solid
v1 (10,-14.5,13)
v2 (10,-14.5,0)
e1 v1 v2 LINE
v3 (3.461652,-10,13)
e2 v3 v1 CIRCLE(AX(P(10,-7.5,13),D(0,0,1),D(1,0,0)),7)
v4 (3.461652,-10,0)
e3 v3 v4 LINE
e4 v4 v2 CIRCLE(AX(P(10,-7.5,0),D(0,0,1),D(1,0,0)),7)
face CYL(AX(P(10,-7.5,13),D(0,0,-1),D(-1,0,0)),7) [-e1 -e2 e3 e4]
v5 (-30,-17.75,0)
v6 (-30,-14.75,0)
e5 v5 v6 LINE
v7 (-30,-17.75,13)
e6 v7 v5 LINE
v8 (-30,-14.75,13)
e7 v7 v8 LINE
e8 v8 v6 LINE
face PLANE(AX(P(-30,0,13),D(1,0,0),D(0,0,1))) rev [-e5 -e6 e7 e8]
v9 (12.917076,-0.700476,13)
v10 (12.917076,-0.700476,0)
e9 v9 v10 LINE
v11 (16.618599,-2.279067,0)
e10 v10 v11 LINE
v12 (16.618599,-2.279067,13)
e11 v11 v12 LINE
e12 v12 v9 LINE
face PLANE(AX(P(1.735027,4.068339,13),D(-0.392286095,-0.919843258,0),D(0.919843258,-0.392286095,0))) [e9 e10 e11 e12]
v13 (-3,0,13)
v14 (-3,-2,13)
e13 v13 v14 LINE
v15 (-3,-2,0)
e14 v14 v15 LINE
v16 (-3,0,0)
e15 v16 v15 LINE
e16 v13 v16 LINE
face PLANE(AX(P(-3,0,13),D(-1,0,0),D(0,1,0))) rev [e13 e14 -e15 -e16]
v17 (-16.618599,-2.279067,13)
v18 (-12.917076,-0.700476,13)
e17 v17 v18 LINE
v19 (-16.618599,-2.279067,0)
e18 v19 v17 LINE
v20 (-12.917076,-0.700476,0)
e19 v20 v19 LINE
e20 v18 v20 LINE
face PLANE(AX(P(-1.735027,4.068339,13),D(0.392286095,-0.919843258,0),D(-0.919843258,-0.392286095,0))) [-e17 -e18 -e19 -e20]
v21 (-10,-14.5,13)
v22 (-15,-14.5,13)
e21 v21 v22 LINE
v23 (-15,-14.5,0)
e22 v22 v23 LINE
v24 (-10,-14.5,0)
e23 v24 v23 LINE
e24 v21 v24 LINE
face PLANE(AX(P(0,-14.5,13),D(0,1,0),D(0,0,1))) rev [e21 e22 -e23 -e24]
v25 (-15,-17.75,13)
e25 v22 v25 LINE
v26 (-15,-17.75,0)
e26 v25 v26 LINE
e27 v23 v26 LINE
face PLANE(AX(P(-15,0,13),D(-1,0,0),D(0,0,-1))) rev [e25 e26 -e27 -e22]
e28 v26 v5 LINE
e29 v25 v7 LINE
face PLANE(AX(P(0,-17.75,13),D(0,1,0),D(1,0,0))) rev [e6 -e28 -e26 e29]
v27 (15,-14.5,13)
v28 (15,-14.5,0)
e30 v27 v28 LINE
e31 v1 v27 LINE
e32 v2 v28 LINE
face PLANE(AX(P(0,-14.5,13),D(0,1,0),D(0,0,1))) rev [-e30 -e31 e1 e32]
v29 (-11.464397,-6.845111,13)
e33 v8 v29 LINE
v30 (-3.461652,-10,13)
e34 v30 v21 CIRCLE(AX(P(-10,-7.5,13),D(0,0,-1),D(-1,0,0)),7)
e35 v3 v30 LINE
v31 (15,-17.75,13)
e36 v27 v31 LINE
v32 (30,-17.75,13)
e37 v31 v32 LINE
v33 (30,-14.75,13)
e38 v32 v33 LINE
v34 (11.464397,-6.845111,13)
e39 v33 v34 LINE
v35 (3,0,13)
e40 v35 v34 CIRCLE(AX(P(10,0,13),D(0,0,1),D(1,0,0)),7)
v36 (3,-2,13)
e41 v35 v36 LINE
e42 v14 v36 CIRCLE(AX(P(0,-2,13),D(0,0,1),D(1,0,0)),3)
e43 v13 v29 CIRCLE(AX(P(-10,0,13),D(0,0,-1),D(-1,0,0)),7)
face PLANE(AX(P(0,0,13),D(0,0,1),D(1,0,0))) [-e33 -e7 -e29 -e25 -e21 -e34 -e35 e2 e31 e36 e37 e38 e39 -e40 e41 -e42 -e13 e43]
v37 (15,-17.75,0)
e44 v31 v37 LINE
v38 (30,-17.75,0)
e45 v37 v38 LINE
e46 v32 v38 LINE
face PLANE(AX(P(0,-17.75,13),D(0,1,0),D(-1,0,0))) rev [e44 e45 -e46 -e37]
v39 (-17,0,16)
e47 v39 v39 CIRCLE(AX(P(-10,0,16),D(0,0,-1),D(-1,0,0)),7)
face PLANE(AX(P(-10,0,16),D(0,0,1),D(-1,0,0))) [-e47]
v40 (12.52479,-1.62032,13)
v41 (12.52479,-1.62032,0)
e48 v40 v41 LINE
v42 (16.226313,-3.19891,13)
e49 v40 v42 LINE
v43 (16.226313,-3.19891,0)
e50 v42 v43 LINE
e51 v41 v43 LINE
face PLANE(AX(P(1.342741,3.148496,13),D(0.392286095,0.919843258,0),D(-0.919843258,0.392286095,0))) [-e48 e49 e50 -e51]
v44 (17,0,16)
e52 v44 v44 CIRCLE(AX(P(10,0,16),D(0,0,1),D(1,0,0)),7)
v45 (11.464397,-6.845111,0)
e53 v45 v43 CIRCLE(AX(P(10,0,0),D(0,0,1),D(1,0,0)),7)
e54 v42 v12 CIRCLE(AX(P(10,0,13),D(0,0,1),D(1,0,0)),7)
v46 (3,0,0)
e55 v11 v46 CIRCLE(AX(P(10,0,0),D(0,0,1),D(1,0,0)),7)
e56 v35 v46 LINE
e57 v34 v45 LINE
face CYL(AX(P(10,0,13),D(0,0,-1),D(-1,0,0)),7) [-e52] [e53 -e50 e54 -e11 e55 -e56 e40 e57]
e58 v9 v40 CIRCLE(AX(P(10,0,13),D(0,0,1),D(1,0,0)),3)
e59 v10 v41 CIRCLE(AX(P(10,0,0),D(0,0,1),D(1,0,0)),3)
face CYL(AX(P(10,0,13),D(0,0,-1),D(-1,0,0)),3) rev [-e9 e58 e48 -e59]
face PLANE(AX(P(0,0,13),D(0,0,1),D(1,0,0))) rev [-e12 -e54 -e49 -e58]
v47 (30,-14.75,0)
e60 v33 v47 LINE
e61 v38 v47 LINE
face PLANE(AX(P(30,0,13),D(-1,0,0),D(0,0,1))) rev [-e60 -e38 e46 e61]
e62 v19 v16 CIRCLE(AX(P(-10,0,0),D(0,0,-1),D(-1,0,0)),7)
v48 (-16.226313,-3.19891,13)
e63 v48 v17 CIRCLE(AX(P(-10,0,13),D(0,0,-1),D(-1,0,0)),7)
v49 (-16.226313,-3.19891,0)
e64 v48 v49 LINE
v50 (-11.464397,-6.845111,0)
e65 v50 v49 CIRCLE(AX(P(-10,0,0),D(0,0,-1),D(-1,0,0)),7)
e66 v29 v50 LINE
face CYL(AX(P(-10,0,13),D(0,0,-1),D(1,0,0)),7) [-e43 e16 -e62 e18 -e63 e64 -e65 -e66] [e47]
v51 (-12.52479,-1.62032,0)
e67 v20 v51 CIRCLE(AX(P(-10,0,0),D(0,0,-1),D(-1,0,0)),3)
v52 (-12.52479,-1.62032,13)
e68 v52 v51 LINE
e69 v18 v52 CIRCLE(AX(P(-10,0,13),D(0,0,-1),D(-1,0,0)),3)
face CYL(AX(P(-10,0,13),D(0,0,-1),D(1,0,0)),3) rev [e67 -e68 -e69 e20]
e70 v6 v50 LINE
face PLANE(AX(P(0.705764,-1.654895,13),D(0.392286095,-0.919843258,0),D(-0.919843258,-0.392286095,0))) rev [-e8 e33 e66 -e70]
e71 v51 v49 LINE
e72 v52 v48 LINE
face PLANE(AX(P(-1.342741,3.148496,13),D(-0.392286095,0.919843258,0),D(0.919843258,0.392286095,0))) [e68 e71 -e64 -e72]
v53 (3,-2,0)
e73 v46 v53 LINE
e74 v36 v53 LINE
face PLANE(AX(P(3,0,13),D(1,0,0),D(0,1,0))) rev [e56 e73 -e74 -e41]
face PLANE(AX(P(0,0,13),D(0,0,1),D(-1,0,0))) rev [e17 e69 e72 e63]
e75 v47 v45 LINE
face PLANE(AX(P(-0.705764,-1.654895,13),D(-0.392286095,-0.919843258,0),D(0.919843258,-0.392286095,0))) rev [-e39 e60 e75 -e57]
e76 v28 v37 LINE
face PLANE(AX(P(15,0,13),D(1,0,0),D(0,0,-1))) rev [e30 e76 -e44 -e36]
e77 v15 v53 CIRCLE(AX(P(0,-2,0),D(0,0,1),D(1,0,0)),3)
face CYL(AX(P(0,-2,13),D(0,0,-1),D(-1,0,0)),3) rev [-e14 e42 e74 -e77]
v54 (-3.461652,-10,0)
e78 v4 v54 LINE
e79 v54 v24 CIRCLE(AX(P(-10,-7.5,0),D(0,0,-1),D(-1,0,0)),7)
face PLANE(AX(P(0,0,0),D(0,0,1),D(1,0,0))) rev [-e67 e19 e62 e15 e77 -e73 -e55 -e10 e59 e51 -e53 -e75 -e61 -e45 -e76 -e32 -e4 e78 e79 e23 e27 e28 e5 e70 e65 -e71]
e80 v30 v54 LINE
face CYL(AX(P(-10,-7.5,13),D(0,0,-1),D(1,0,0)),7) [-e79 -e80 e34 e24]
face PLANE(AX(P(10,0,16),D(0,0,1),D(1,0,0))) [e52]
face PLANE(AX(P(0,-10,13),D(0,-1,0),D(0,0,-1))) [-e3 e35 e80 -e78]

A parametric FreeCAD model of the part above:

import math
import FreeCAD as App
import Part
import Sketcher
from FreeCAD import Vector

doc = App.newDocument("Part")
body = doc.addObject("PartDesign::Body", "Body")

# Sketch on XY plane
sketch1 = body.newObject("Sketcher::SketchObject", "Sketch")
sketch1.AttachmentSupport = (doc.getObject("XY_Plane"), [""])
sketch1.MapMode = "FlatFace"
sketch1.addGeometry([
    Part.LineSegment(Vector(3, 0, 0), Vector(3, -2, 0)),  # 0
    Part.ArcOfCircle(Part.Circle(Vector(0, -2, 0), Vector(0, 0, 1), 3), math.radians(-90), math.radians(0)),  # 1
    Part.LineSegment(Vector(0, -5, 0), Vector(0, -10, 0)),  # 2
    Part.LineSegment(Vector(0, -10, 0), Vector(3.461652, -10, 0)),  # 3
    Part.ArcOfCircle(Part.Circle(Vector(10, -7.5, 0), Vector(0, 0, 1), 7), math.radians(-159.075168), math.radians(-90)),  # 4
    Part.LineSegment(Vector(10, -14.5, 0), Vector(15, -14.5, 0)),  # 5
    Part.LineSegment(Vector(15, -14.5, 0), Vector(15, -17.75, 0)),  # 6
    Part.LineSegment(Vector(15, -17.75, 0), Vector(30, -17.75, 0)),  # 7
    Part.LineSegment(Vector(30, -17.75, 0), Vector(30, -14.75, 0)),  # 8
    Part.LineSegment(Vector(30, -14.75, 0), Vector(16.808917, -9.124391, 0)),  # 9
    Part.LineSegment(Vector(16.808917, -9.124391, 0), Vector(11.464397, -6.845111, 0)),  # 10
    Part.ArcOfCircle(Part.Circle(Vector(10, 0, 0), Vector(0, 0, 1), 7), math.radians(-77.924547), math.radians(180)),  # 11
], False)
sketch1.addConstraint([
    Sketcher.Constraint("Tangent", 0, 2, 1, 2),
    Sketcher.Constraint("Coincident", 1, 1, 2, 1),
    Sketcher.Constraint("Coincident", 2, 2, 3, 1),
    Sketcher.Constraint("Coincident", 3, 2, 4, 1),
    Sketcher.Constraint("Tangent", 4, 2, 5, 1),
    Sketcher.Constraint("Coincident", 5, 2, 6, 1),
    Sketcher.Constraint("Coincident", 6, 2, 7, 1),
    Sketcher.Constraint("Coincident", 7, 2, 8, 1),
    Sketcher.Constraint("Coincident", 8, 2, 9, 1),
    Sketcher.Constraint("Coincident", 9, 2, 10, 1),
    Sketcher.Constraint("Coincident", 10, 2, 11, 1),
    Sketcher.Constraint("Tangent", 11, 2, 0, 1),
    Sketcher.Constraint("Vertical", 0),
    Sketcher.Constraint("Vertical", 2),
    Sketcher.Constraint("Horizontal", 3),
    Sketcher.Constraint("Horizontal", 5),
    Sketcher.Constraint("Vertical", 6),
    Sketcher.Constraint("Horizontal", 7),
    Sketcher.Constraint("Vertical", 8),
    Sketcher.Constraint("Equal", 4, 11),
    Sketcher.Constraint("PointOnObject", 1, 3, -2),
    Sketcher.Constraint("PointOnObject", 11, 3, -1),
    Sketcher.Constraint("PointOnObject", 1, 1, -2),
    Sketcher.Constraint("Parallel", 9, 10),
    Sketcher.Constraint("Vertical", 4, 3, 11, 3),
    Sketcher.Constraint("Equal", 5, 2),
    Sketcher.Constraint("Radius", 1, 3.0),
    Sketcher.Constraint("Radius", 4, 7.0),
    Sketcher.Constraint("DistanceX", 5, 1, 5, 2, 5.0),
    Sketcher.Constraint("DistanceX", 7, 1, 7, 2, 15.0),
    Sketcher.Constraint("DistanceY", 0, 2, 0, 1, 2.0),
    Sketcher.Constraint("DistanceY", 8, 1, 8, 2, 3.0),
    Sketcher.Constraint("DistanceY", 6, 2, 6, 1, 3.25),
    Sketcher.Constraint("DistanceY", 4, 3, -1, 1, 7.5),
    Sketcher.Constraint("Distance", 10, 5.810251),
    Sketcher.Constraint("DistanceY", 9, 2, -1, 1, 9.124391),
])
pad1 = body.newObject("PartDesign::Pad", "Pad")
pad1.Profile = sketch1
pad1.Length = 13

# Sketch on XY plane
sketch2 = body.newObject("Sketcher::SketchObject", "Sketch001")
sketch2.AttachmentSupport = (doc.getObject("XY_Plane"), [""])
sketch2.MapMode = "FlatFace"
sketch2.AttachmentOffset = App.Placement(Vector(0, 0, 13), App.Rotation())
sketch2.addGeometry(Part.Circle(Vector(10, 0, 0), Vector(0, 0, 1), 7), False)
sketch2.addConstraint([
    Sketcher.Constraint("PointOnObject", 0, 3, -1),
    Sketcher.Constraint("Diameter", 0, 14.0),
    Sketcher.Constraint("DistanceX", -1, 1, 0, 3, 10.0),
])
pad2 = body.newObject("PartDesign::Pad", "Pad001")
pad2.Profile = sketch2
pad2.Length = 3

# Sketch on XY plane
sketch3 = body.newObject("Sketcher::SketchObject", "Sketch002")
sketch3.AttachmentSupport = (doc.getObject("XY_Plane"), [""])
sketch3.MapMode = "FlatFace"
sketch3.addGeometry([
    Part.LineSegment(Vector(12.52479, -1.62032, 0), Vector(16.664085, -3.385607, 0)),
    Part.LineSegment(Vector(16.664085, -3.385607, 0), Vector(17.056371, -2.465764, 0)),
    Part.LineSegment(Vector(17.056371, -2.465764, 0), Vector(12.917076, -0.700476, 0)),
    Part.ArcOfCircle(Part.Circle(Vector(10, 0, 0), Vector(0, 0, 1), 3), math.radians(-13.502754), math.radians(327.30911)),
], False)
sketch3.addConstraint([
    Sketcher.Constraint("Coincident", 0, 2, 1, 1),
    Sketcher.Constraint("Coincident", 1, 2, 2, 1),
    Sketcher.Constraint("Coincident", 2, 2, 3, 1),
    Sketcher.Constraint("Coincident", 3, 2, 0, 1),
    Sketcher.Constraint("PointOnObject", 3, 3, -1),
    Sketcher.Constraint("Perpendicular", 0, 1),
    Sketcher.Constraint("Perpendicular", 1, 2),
    Sketcher.Constraint("Equal", 0, 2),
    Sketcher.Constraint("Radius", 3, 3.0),
    Sketcher.Constraint("Distance", 1, 1.0),
    Sketcher.Constraint("DistanceX", -1, 1, 3, 3, 10.0),
    Sketcher.Constraint("Distance", 0, 4.5),
    Sketcher.Constraint("DistanceX", -1, 1, 1, 2, 17.056371),
])
pocket1 = body.newObject("PartDesign::Pocket", "Pocket")
pocket1.Profile = sketch3
pocket1.Length = 13
pocket1.Reversed = True
body2 = doc.addObject("PartDesign::Body", "Body001")
doc.recompute()

body2.BaseFeature = body
doc.recompute()

mirroring = doc.addObject("Part::Mirroring", "Mirroring")
mirroring.Source = body
mirroring.Base = Vector(0, 0, 0)
mirroring.Normal = Vector(1, 0, 0)
body3 = doc.addObject("PartDesign::Body", "Body002")
body3.BaseFeature = mirroring
boolean = body2.newObject("PartDesign::Boolean", "Boolean")
boolean.Type = "Fuse"
boolean.addObjects([body3])
doc.recompute()
mirroring.Visibility = False

doc.recompute()
